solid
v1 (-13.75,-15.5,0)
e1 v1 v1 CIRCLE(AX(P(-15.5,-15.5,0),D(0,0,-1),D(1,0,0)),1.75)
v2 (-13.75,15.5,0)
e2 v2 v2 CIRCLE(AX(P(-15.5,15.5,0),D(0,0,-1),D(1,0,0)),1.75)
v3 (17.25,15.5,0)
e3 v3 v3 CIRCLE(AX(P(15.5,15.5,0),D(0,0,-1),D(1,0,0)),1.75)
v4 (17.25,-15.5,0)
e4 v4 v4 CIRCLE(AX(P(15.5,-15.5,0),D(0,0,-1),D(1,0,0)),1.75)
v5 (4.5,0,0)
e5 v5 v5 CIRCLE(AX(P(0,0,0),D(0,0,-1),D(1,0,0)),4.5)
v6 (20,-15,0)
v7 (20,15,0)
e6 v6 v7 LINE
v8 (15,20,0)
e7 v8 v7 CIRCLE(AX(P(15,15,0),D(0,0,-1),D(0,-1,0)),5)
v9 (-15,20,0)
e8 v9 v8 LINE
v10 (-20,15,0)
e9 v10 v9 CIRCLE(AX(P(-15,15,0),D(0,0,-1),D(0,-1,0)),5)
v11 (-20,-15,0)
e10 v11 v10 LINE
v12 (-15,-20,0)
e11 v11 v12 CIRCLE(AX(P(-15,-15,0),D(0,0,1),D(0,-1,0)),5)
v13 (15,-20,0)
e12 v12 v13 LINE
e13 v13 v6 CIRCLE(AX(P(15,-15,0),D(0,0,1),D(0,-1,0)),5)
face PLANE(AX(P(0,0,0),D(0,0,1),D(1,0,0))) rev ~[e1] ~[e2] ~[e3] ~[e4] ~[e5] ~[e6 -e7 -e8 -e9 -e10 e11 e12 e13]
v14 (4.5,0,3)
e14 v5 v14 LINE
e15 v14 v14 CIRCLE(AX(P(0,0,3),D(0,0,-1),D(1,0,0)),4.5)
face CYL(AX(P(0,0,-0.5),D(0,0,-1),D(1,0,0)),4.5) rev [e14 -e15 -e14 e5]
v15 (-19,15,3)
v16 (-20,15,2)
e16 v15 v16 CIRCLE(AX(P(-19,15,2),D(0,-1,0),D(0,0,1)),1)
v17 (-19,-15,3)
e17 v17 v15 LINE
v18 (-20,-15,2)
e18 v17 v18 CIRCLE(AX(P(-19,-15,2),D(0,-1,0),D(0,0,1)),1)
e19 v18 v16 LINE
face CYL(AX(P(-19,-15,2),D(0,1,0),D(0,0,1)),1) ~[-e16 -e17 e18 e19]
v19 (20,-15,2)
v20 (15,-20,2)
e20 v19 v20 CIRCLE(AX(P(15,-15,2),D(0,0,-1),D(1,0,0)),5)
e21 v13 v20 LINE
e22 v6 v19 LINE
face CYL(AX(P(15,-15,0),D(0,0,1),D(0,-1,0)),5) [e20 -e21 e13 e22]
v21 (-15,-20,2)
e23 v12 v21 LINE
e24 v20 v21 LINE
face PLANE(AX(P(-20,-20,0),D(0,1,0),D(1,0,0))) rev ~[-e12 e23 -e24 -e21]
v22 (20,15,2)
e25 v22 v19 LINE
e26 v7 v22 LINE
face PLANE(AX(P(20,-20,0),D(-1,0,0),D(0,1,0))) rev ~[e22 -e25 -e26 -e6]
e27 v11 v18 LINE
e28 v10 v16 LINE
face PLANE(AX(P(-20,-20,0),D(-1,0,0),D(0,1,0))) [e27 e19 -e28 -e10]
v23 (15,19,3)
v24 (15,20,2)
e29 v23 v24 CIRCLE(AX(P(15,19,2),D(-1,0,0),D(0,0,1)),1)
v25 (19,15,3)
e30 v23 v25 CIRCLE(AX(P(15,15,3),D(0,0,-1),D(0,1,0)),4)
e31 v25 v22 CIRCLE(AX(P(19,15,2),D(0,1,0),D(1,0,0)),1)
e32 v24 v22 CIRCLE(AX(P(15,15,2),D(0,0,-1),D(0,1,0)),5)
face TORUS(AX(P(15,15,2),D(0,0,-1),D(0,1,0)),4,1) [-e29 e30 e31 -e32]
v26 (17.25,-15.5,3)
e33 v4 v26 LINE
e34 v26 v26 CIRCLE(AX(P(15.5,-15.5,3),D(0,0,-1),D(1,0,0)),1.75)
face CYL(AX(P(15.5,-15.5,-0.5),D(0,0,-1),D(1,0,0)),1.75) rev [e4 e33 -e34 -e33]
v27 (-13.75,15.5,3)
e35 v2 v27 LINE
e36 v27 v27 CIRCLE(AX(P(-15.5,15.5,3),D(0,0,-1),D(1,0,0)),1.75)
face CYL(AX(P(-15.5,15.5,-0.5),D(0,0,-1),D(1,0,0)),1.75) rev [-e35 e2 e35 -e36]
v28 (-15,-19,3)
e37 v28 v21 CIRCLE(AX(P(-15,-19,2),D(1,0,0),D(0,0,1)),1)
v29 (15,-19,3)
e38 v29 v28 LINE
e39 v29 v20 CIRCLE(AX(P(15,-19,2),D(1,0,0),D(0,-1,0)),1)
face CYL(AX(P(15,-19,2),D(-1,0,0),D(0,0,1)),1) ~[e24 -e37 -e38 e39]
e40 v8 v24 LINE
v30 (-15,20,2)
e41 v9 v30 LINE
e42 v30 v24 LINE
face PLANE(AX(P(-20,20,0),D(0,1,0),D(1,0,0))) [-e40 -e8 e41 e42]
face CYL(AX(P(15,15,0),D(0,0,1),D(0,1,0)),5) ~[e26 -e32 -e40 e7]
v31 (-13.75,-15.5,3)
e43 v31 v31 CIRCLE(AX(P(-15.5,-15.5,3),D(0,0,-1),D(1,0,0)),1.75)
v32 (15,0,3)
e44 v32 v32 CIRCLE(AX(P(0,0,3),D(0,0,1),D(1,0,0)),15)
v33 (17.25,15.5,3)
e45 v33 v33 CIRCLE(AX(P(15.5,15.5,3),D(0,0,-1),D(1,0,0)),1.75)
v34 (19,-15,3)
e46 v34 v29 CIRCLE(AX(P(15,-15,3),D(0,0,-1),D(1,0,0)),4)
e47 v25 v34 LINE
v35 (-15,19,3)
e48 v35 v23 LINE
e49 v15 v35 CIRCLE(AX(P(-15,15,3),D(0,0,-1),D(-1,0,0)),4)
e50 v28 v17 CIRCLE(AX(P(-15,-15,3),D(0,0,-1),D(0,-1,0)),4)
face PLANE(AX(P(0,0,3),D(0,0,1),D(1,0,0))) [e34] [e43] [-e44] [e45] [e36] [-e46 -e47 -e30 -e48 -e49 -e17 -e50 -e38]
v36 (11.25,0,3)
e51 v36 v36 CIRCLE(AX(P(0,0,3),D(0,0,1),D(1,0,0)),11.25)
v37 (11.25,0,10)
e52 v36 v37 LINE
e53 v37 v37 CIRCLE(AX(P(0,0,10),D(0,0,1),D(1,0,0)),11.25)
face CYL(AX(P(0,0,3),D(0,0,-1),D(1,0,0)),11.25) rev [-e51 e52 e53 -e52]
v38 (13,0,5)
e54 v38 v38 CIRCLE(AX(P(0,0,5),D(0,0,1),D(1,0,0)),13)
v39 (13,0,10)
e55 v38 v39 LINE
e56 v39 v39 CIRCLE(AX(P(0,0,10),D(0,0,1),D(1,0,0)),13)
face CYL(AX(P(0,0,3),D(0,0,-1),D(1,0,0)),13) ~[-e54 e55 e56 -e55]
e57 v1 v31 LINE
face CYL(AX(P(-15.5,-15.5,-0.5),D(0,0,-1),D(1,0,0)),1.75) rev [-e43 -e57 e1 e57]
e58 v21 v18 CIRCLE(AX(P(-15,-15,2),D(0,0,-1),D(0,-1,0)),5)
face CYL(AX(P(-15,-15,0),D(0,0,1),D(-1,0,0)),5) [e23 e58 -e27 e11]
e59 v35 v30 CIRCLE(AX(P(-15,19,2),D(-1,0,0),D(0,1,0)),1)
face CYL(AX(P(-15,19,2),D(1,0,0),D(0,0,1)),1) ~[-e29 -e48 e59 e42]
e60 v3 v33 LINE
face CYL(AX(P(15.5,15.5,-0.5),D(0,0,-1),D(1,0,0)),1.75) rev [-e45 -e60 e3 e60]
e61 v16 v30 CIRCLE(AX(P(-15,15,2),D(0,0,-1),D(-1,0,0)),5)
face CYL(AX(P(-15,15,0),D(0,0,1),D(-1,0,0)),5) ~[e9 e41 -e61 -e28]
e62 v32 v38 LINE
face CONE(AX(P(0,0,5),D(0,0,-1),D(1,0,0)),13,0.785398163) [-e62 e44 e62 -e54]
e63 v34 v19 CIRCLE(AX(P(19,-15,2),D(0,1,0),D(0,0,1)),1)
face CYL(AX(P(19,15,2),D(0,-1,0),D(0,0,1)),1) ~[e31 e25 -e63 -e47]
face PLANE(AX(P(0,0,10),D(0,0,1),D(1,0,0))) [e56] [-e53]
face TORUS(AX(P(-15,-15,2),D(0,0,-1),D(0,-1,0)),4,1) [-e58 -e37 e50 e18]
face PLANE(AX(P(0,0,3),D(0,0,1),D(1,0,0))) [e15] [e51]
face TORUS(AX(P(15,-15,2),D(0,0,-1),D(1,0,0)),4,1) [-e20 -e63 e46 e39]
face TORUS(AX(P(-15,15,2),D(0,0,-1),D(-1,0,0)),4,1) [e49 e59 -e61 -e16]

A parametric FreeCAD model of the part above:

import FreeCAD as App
import Part
import Sketcher
from FreeCAD import Vector
Q = App.Units.Quantity


def edges_at(feature, points):
    """Names of the edges that pass closest to the given points."""
    edges = feature.Shape.Edges
    near = lambda p: min(range(len(edges)), key=lambda i: edges[i].distToShape(Part.Vertex(*p))[0])
    return sorted({f"Edge{near(p) + 1}" for p in points})


def add_polygon(sketch, points):
    """Adds a closed chain of lines whose ends are joined by coincident constraints."""
    first, n = sketch.GeometryCount, len(points)
    for a, b in zip(points, points[1:] + points[:1]):
        sketch.addGeometry(Part.LineSegment(App.Vector(*a, 0), App.Vector(*b, 0)), False)
    for i in range(n):
        sketch.addConstraint(Sketcher.Constraint("Coincident", first + i, 2, first + (i + 1) % n, 1))

doc = App.newDocument("Part")
body = doc.addObject("PartDesign::Body", "Body")

sketch1 = body.newObject("Sketcher::SketchObject", "Sketch")
sketch1.AttachmentSupport = (doc.getObject("XY_Plane"), [""])
sketch1.MapMode = "FlatFace"
sketch1.addGeometry(Part.Circle(Vector(0, 0, 0), Vector(0, 0, 1), 11), False)
sketch1.addConstraint(Sketcher.Constraint("Coincident", 0, 3, -1, 1))
sketch1.addConstraint(Sketcher.Constraint("Diameter", 0, Q("22.5 mm")))
pad1 = body.newObject("PartDesign::Pad", "Pad")
pad1.Profile = sketch1
pad1.Length = 7
body2 = doc.addObject("PartDesign::Body", "Body001")

sketch2 = body2.newObject("Sketcher::SketchObject", "Sketch001")
sketch2.AttachmentSupport = (doc.getObject("XY_Plane001"), [""])
sketch2.MapMode = "FlatFace"
sketch2.addGeometry(Part.Circle(Vector(0, 0, 0), Vector(0, 0, 1), 13), False)
sketch2.addConstraint(Sketcher.Constraint("Coincident", 0, 3, -1, 1))
sketch2.addConstraint(Sketcher.Constraint("Diameter", 0, Q("26 mm")))
pad2 = body2.newObject("PartDesign::Pad", "Pad001")
pad2.Profile = sketch2
pad2.Length = 7
doc.recompute()

boolean = body2.newObject("PartDesign::Boolean", "Boolean")
boolean.Type = "Cut"
boolean.addObjects([body])
body3 = doc.addObject("PartDesign::Body", "Body002")
doc.recompute()

body2.Placement = App.Placement(Vector(0, 0, 3), App.Rotation(Vector(0, 0, 1), 0))
boolean2 = body3.newObject("PartDesign::Boolean", "Boolean001")
boolean2.Type = "Fuse"
boolean2.addObjects([body2])
body4 = doc.addObject("PartDesign::Body", "Body003")
body4.AllowCompound = True

sketch3 = body4.newObject("Sketcher::SketchObject", "Sketch002")
sketch3.AttachmentSupport = (doc.getObject("XY_Plane003"), [""])
sketch3.MapMode = "FlatFace"
sketch3.AttachmentOffset = App.Placement(Vector(0, 0, -0.5), App.Rotation())
sketch3.addGeometry(Part.Circle(Vector(-15.5, 15.5, 0), Vector(0, 0, 1), 1.8), False)
sketch3.addGeometry(Part.Circle(Vector(15.5, 15.5, 0), Vector(0, 0, 1), 1.8), False)
sketch3.addGeometry(Part.Circle(Vector(-15.5, -15.5, 0), Vector(0, 0, 1), 1.8), False)
sketch3.addGeometry(Part.Circle(Vector(15.5, -15.5, 0), Vector(0, 0, 1), 1.8), False)
sketch3.addGeometry(Part.Circle(Vector(0, 0, 0), Vector(0, 0, 1), 4.5), False)
sketch3.addConstraint(Sketcher.Constraint("Coincident", 4, 3, -1, 1))
sketch3.addConstraint(Sketcher.Constraint("Equal", 0, 1))
sketch3.addConstraint(Sketcher.Constraint("Equal", 1, 2))
sketch3.addConstraint(Sketcher.Constraint("Equal", 2, 3))
sketch3.addConstraint(Sketcher.Constraint("Symmetric", 1, 3, 2, 3, -1, 1))
sketch3.addConstraint(Sketcher.Constraint("Symmetric", 0, 3, 3, 3, -1, 1))
sketch3.addConstraint(Sketcher.Constraint("Symmetric", 0, 3, 1, 3, -2))
sketch3.addConstraint(Sketcher.Constraint("Diameter", 4, Q("9 mm")))
sketch3.addConstraint(Sketcher.Constraint("Diameter", 0, Q("3.5 mm")))
sketch3.addConstraint(Sketcher.Constraint("DistanceX", 0, 3, 1, 3, Q("31 mm")))
sketch3.addConstraint(Sketcher.Constraint("DistanceY", 2, 3, 0, 3, Q("31 mm")))
pad3 = body4.newObject("PartDesign::Pad", "Pad002")
pad3.Profile = sketch3
pad3.Length = 4
body5 = doc.addObject("PartDesign::Body", "Body004")

sketch4 = body5.newObject("Sketcher::SketchObject", "Sketch003")
sketch4.AttachmentSupport = (doc.getObject("XY_Plane004"), [""])
sketch4.MapMode = "FlatFace"
add_polygon(sketch4, [(-20, 20), (-20, -20), (20, -20), (20, 20)])
sketch4.addConstraint(Sketcher.Constraint("Vertical", 0))
sketch4.addConstraint(Sketcher.Constraint("Horizontal", 1))
sketch4.addConstraint(Sketcher.Constraint("Vertical", 2))
sketch4.addConstraint(Sketcher.Constraint("Horizontal", 3))
sketch4.addConstraint(Sketcher.Constraint("Symmetric", 0, 2, 2, 2, -1, 1))
sketch4.addConstraint(Sketcher.Constraint("Equal", 3, 0))
sketch4.addConstraint(Sketcher.Constraint("DistanceX", 1, 1, 1, 2, Q("40 mm")))
pad4 = body5.newObject("PartDesign::Pad", "Pad003")
pad4.Profile = sketch4
pad4.Length = 3
doc.recompute()

boolean3 = body5.newObject("PartDesign::Boolean", "Boolean002")
boolean3.Type = "Cut"
boolean3.addObjects([body4])
doc.recompute()

boolean4 = body5.newObject("PartDesign::Boolean", "Boolean003")
boolean4.Type = "Fuse"
boolean4.addObjects([body3])
doc.recompute()

chamfer = body5.newObject("PartDesign::Chamfer", "Chamfer")
chamfer.Base = (boolean4, edges_at(boolean4, [(-13, 0, 3)]))
chamfer.Size = 2
doc.recompute()

fillet = body5.newObject("PartDesign::Fillet", "Fillet")
fillet.Base = (chamfer, edges_at(chamfer, [
    (-20, -20, 1.5),
    (-20, 20, 1.5),
    (20, 20, 1.5),
    (20, -20, 1.5),
]))
fillet.Radius = 5
doc.recompute()

fillet2 = body5.newObject("PartDesign::Fillet", "Fillet001")
fillet2.Base = (fillet, edges_at(fillet, [
    (-20, 0, 3),
    (-18.536, -18.536, 3),
    (-18.536, 18.536, 3),
    (0, -20, 3),
    (0, 20, 3),
    (18.536, -18.536, 3),
    (18.536, 18.536, 3),
    (20, 0, 3),
]))
fillet2.Radius = 1

doc.recompute()
